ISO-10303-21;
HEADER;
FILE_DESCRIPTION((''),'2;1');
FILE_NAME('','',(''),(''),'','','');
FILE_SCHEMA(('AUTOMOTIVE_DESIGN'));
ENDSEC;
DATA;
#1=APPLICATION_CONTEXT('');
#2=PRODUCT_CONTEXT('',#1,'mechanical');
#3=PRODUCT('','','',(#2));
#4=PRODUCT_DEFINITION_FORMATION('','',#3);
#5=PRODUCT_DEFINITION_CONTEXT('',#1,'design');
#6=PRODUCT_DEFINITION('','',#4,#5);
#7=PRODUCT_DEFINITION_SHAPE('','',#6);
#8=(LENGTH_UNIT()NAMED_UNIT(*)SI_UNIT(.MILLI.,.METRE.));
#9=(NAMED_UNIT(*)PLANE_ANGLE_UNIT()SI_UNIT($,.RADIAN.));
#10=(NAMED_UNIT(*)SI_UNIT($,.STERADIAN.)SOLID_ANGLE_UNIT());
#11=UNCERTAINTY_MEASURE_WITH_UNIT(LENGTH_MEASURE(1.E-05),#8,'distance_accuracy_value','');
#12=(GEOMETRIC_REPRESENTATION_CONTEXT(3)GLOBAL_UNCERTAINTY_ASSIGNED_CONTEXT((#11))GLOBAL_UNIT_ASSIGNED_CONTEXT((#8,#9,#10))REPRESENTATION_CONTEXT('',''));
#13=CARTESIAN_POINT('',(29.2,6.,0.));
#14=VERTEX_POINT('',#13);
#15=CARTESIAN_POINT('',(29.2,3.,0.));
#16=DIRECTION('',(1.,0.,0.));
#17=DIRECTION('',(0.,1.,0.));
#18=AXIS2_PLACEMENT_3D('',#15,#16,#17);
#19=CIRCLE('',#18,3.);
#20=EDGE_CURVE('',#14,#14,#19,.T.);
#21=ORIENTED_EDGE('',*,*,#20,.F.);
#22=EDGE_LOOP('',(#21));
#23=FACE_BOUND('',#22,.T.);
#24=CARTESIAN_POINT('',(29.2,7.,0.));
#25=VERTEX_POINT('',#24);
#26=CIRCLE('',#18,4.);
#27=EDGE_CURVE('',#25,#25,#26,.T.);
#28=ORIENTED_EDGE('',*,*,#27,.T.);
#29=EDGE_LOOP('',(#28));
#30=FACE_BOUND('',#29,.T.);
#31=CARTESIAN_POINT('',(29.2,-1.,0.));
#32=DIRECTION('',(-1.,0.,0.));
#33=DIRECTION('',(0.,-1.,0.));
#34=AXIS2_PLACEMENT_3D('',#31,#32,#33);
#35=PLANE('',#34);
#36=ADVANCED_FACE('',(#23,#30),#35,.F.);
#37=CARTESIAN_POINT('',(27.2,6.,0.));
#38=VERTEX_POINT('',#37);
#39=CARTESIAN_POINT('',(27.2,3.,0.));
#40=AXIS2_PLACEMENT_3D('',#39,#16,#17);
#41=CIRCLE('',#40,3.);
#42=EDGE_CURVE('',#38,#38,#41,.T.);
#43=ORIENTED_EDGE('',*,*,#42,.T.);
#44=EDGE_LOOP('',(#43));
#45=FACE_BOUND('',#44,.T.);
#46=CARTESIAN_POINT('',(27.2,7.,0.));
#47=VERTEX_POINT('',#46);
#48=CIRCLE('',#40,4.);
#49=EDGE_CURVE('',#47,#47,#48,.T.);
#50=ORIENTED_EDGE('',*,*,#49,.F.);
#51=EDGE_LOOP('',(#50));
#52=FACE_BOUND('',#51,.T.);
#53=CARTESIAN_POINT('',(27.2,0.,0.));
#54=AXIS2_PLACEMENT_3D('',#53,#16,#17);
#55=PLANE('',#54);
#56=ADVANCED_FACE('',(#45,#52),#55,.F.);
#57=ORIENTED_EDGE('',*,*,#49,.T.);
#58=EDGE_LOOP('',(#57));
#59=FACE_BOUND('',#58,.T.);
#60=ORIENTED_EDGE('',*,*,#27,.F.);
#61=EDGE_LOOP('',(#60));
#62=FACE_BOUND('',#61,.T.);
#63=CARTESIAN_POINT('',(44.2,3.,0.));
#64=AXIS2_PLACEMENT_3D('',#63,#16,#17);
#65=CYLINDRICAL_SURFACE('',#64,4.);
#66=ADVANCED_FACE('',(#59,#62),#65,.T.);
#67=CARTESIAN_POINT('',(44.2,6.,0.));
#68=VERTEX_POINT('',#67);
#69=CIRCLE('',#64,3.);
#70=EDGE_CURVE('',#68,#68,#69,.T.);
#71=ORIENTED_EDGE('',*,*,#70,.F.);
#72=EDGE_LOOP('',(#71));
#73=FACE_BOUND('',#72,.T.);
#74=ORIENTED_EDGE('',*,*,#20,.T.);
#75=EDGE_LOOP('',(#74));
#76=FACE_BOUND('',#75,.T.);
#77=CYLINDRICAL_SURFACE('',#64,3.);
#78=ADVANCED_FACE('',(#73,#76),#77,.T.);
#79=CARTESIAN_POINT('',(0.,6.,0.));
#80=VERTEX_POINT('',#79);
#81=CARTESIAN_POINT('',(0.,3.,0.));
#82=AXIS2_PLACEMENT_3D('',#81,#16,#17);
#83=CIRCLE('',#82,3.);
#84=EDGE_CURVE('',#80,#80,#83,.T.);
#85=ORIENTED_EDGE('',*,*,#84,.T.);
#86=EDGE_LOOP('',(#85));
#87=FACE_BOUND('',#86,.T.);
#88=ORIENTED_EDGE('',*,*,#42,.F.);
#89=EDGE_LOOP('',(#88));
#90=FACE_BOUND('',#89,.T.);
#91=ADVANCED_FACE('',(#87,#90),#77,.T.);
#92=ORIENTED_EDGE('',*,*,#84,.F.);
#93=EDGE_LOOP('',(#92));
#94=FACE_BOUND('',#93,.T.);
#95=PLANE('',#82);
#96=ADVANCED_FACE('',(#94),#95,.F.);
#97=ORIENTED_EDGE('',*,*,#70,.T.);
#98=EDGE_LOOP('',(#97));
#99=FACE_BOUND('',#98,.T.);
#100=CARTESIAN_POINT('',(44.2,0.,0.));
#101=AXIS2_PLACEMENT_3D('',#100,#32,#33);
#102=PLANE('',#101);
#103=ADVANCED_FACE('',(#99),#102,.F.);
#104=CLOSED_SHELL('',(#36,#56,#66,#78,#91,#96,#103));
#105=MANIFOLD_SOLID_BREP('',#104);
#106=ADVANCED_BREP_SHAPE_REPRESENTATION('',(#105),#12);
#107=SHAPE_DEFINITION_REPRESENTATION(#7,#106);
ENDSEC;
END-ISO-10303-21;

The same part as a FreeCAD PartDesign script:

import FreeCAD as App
import Part
import Sketcher


def add_polygon(sketch, points):
    """Adds a closed chain of lines whose ends are joined by coincident constraints."""
    first, n = sketch.GeometryCount, len(points)
    for a, b in zip(points, points[1:] + points[:1]):
        sketch.addGeometry(Part.LineSegment(App.Vector(*a, 0), App.Vector(*b, 0)), False)
    for i in range(n):
        sketch.addConstraint(Sketcher.Constraint("Coincident", first + i, 2, first + (i + 1) % n, 1))

doc = App.newDocument("Part")
body = doc.addObject("PartDesign::Body", "Body")

# Sketch on XY plane
sketch1 = body.newObject("Sketcher::SketchObject", "Sketch")
sketch1.AttachmentSupport = (doc.getObject("XY_Plane"), [""])
sketch1.MapMode = "FlatFace"
add_polygon(sketch1, [(0, 3), (0, 0), (27.2, 0), (27.2, -1), (29.2, -1), (29.2, 0), (44.2, 0), (44.2, 3)])  # lines 0-7
sketch1.addGeometry(Part.LineSegment(App.Vector(44.2, 3, 0), App.Vector(0, 3, 0)), True)  # axis
sketch1.addConstraint(Sketcher.Constraint("Vertical", 0))
sketch1.addConstraint(Sketcher.Constraint("Horizontal", 1))
sketch1.addConstraint(Sketcher.Constraint("Vertical", 2))
sketch1.addConstraint(Sketcher.Constraint("Horizontal", 3))
sketch1.addConstraint(Sketcher.Constraint("Vertical", 4))
sketch1.addConstraint(Sketcher.Constraint("Horizontal", 5))
sketch1.addConstraint(Sketcher.Constraint("Vertical", 6))
sketch1.addConstraint(Sketcher.Constraint("Horizontal", 7))
sketch1.addConstraint(Sketcher.Constraint("Horizontal", 8))
sketch1.addConstraint(Sketcher.Constraint("Coincident", 0, 2, -1, 1))
sketch1.addConstraint(Sketcher.Constraint("Coincident", 8, 1, 6, 2))
sketch1.addConstraint(Sketcher.Constraint("PointOnObject", 4, 2, -1))
sketch1.addConstraint(Sketcher.Constraint("PointOnObject", 8, 2, -2))
sketch1.addConstraint(Sketcher.Constraint("DistanceX", 3, 1, 3, 2, 2.0))
sketch1.addConstraint(Sketcher.Constraint("DistanceX", 5, 1, 5, 2, 15.0))
sketch1.addConstraint(Sketcher.Constraint("DistanceY", 0, 2, 0, 1, 3.0))
sketch1.addConstraint(Sketcher.Constraint("DistanceY", 2, 2, 2, 1, 1.0))
sketch1.addConstraint(Sketcher.Constraint("DistanceX", 1, 1, 1, 2, 27.2))
revolution = body.newObject("PartDesign::Revolution", "Revolution")
revolution.Profile = sketch1
revolution.ReferenceAxis = (sketch1, ["Axis0"])
revolution.Angle = 360

doc.recompute()
